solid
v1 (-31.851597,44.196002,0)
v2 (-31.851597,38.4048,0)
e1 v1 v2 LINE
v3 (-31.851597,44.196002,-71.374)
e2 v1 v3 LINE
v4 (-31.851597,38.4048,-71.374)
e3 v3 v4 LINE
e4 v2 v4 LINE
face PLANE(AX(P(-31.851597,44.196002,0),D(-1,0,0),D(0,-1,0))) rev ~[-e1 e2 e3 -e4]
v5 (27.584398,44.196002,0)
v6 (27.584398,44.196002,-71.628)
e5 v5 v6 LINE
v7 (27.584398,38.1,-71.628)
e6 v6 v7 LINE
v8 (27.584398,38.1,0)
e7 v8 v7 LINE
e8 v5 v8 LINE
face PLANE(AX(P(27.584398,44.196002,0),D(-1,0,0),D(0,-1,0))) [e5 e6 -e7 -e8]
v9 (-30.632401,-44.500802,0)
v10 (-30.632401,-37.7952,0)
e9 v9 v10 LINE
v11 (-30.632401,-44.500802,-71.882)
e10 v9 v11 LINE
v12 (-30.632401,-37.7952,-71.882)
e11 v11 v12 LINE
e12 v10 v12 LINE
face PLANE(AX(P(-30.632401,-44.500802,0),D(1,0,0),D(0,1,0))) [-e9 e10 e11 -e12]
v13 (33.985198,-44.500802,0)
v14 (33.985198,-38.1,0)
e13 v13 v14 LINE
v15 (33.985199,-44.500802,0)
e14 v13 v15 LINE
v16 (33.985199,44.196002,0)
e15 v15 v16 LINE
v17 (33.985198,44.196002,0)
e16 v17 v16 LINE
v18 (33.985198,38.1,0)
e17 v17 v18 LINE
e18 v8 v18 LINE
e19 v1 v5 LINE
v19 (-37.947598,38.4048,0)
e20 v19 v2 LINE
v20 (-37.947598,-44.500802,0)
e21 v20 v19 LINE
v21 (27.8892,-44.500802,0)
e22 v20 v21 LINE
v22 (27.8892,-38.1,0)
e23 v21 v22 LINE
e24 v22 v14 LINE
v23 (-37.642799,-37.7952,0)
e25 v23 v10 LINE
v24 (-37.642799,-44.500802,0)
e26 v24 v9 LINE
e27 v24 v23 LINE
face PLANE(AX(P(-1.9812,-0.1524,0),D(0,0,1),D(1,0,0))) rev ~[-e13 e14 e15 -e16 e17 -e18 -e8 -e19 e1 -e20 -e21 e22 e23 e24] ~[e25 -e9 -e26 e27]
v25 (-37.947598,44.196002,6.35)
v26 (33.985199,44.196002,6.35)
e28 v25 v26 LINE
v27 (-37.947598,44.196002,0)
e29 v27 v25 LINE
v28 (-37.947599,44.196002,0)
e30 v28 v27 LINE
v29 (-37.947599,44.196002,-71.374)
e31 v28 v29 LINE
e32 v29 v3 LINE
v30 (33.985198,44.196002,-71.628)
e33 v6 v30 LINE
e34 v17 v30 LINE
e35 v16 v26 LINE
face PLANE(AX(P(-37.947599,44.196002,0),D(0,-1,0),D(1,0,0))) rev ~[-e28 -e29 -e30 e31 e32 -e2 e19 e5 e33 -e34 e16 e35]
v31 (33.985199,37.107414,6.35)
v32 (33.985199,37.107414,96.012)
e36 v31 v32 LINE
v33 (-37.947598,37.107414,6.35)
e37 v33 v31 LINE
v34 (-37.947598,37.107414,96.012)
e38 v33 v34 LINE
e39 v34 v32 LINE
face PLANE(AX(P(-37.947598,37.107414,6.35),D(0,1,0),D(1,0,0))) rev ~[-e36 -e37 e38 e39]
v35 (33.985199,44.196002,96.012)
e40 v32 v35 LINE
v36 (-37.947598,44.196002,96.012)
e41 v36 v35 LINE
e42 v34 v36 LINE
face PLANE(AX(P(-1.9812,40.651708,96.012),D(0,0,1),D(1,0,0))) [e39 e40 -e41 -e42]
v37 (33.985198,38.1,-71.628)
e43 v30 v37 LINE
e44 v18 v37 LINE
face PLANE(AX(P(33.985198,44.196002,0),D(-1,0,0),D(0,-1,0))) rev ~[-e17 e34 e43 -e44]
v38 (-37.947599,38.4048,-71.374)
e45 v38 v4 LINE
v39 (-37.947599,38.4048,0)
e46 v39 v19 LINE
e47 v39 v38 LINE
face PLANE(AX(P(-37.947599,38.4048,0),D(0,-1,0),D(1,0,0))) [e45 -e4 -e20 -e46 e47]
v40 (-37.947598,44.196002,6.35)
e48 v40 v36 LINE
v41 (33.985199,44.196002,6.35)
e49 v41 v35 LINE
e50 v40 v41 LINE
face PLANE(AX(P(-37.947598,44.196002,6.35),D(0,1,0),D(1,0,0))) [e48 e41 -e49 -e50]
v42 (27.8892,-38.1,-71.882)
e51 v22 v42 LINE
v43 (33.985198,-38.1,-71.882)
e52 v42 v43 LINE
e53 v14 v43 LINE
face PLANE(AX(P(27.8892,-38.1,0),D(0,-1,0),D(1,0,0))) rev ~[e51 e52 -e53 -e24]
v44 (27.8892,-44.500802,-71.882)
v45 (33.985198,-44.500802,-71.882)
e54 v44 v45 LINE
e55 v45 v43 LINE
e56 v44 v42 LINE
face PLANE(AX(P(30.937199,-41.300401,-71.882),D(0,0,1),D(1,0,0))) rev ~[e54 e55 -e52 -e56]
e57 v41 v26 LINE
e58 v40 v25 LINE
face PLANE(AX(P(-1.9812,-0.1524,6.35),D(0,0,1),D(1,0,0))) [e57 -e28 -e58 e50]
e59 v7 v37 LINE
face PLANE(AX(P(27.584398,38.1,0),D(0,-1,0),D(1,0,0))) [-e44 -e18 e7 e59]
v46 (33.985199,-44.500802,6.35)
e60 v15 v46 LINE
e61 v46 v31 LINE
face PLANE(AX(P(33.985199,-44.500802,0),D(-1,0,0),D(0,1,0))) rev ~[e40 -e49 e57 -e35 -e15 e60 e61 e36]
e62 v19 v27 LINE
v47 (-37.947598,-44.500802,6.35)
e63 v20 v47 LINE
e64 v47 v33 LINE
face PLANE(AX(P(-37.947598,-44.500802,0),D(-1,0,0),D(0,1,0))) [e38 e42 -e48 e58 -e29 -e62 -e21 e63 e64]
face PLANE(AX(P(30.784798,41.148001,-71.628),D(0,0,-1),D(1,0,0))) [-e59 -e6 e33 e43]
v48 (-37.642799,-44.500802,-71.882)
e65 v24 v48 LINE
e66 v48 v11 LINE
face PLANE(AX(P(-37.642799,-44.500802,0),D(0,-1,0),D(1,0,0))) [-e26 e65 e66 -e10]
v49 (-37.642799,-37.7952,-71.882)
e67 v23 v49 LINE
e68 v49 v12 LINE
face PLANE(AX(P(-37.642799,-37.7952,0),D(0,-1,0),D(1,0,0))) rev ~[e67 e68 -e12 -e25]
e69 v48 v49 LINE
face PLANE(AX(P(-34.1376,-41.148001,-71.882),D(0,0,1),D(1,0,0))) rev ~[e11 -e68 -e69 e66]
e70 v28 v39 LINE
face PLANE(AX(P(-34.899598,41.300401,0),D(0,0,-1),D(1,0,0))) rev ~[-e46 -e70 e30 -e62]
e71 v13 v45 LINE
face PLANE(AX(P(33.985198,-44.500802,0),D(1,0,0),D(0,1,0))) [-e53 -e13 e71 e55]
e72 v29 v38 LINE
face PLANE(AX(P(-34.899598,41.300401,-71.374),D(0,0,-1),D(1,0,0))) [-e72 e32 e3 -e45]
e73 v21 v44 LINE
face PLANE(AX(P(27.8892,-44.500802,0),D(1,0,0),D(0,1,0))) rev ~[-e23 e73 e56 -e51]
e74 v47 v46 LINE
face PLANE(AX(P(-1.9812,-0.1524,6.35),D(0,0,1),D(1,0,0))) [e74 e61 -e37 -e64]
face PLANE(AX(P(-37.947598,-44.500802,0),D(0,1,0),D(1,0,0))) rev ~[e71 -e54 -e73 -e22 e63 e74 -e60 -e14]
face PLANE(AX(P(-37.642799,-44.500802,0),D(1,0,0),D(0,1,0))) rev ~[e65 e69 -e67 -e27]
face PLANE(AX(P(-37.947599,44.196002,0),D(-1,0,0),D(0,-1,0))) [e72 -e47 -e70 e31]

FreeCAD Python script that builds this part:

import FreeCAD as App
import Part
import Sketcher
from FreeCAD import Vector
Q = App.Units.Quantity


def add_polygon(sketch, points):
    """Adds a closed chain of lines whose ends are joined by coincident constraints."""
    first, n = sketch.GeometryCount, len(points)
    for a, b in zip(points, points[1:] + points[:1]):
        sketch.addGeometry(Part.LineSegment(App.Vector(*a, 0), App.Vector(*b, 0)), False)
    for i in range(n):
        sketch.addConstraint(Sketcher.Constraint("Coincident", first + i, 2, first + (i + 1) % n, 1))

doc = App.newDocument("Part")
body = doc.addObject("PartDesign::Body", "Body")

sketch1 = body.newObject("Sketcher::SketchObject", "Sketch")
sketch1.AttachmentSupport = (doc.getObject("XY_Plane"), [""])
sketch1.MapMode = "FlatFace"
add_polygon(sketch1, [(-37.947598, 44.196002), (-37.947598, -44.500802), (33.985199, -44.500802), (33.985199, 44.196002)])
sketch1.addConstraint(Sketcher.Constraint("Vertical", 0))
sketch1.addConstraint(Sketcher.Constraint("Horizontal", 1))
sketch1.addConstraint(Sketcher.Constraint("Vertical", 2))
sketch1.addConstraint(Sketcher.Constraint("Horizontal", 3))
sketch1.addConstraint(Sketcher.Constraint("DistanceX", 1, 1, 1, 2, Q("2.8319999 in")))
sketch1.addConstraint(Sketcher.Constraint("DistanceY", 0, 2, 0, 1, Q("3.4920002 in")))
sketch1.addConstraint(Sketcher.Constraint("DistanceY", -1, 1, 2, 2, Q("1.7400001 in")))
sketch1.addConstraint(Sketcher.Constraint("DistanceX", 0, 2, -1, 1, Q("1.4939999 in")))
pad1 = body.newObject("PartDesign::Pad", "Pad")
pad1.Profile = sketch1
pad1.Length = Q("0.25 in")

sketch2 = body.newObject("Sketcher::SketchObject", "Sketch001")
sketch2.AttachmentSupport = (doc.getObject("XY_Plane"), [""])
sketch2.MapMode = "FlatFace"
add_polygon(sketch2, [(-37.642799, -37.7952), (-37.642799, -44.500802), (-30.632401, -44.500802), (-30.632401, -37.7952)])
sketch2.addConstraint(Sketcher.Constraint("Vertical", 0))
sketch2.addConstraint(Sketcher.Constraint("Horizontal", 1))
sketch2.addConstraint(Sketcher.Constraint("Vertical", 2))
sketch2.addConstraint(Sketcher.Constraint("Horizontal", 3))
sketch2.addConstraint(Sketcher.Constraint("DistanceX", 1, 1, 1, 2, Q("0.2759999 in")))
sketch2.addConstraint(Sketcher.Constraint("DistanceY", 0, 2, 0, 1, Q("0.264 in")))
sketch2.addConstraint(Sketcher.Constraint("DistanceX", 0, 2, -1, 1, Q("1.482 in")))
sketch2.addConstraint(Sketcher.Constraint("DistanceY", 0, 2, -1, 1, Q("1.7520001 in")))
pad2 = body.newObject("PartDesign::Pad", "Pad001")
pad2.Profile = sketch2
pad2.Length = Q("2.83 in")
pad2.Reversed = True

sketch3 = body.newObject("Sketcher::SketchObject", "Sketch002")
sketch3.AttachmentSupport = (doc.getObject("XY_Plane"), [""])
sketch3.MapMode = "FlatFace"
add_polygon(sketch3, [(27.8892, -38.1), (27.8892, -44.500802), (33.985198, -44.500802), (33.985198, -38.1)])
sketch3.addConstraint(Sketcher.Constraint("Vertical", 0))
sketch3.addConstraint(Sketcher.Constraint("Horizontal", 1))
sketch3.addConstraint(Sketcher.Constraint("Vertical", 2))
sketch3.addConstraint(Sketcher.Constraint("Horizontal", 3))
sketch3.addConstraint(Sketcher.Constraint("DistanceX", 1, 1, 1, 2, Q("0.2399999 in")))
sketch3.addConstraint(Sketcher.Constraint("DistanceY", 2, 2, -1, 1, Q("1.5 in")))
sketch3.addConstraint(Sketcher.Constraint("DistanceY", 0, 2, 0, 1, Q("0.2520001 in")))
sketch3.addConstraint(Sketcher.Constraint("DistanceX", -1, 1, 0, 2, Q("1.098 in")))
pad3 = body.newObject("PartDesign::Pad", "Pad002")
pad3.Profile = sketch3
pad3.Length = Q("2.83 in")
pad3.Reversed = True

sketch4 = body.newObject("Sketcher::SketchObject", "Sketch003")
sketch4.AttachmentSupport = (doc.getObject("XY_Plane"), [""])
sketch4.MapMode = "FlatFace"
add_polygon(sketch4, [(-37.947599, 38.4048), (-37.947599, 44.196002), (-31.851597, 44.196002), (-31.851597, 38.4048)])
sketch4.addConstraint(Sketcher.Constraint("Vertical", 0))
sketch4.addConstraint(Sketcher.Constraint("Horizontal", 1))
sketch4.addConstraint(Sketcher.Constraint("Vertical", 2))
sketch4.addConstraint(Sketcher.Constraint("Horizontal", 3))
sketch4.addConstraint(Sketcher.Constraint("DistanceX", 1, 1, 1, 2, Q("0.2400001 in")))
sketch4.addConstraint(Sketcher.Constraint("DistanceY", 0, 1, 0, 2, Q("0.2280001 in")))
sketch4.addConstraint(Sketcher.Constraint("DistanceY", -1, 1, 0, 2, Q("1.7400001 in")))
sketch4.addConstraint(Sketcher.Constraint("DistanceX", 0, 2, -1, 1, Q("1.494 in")))
pad4 = body.newObject("PartDesign::Pad", "Pad003")
pad4.Profile = sketch4
pad4.Length = Q("2.81 in")
pad4.Reversed = True

sketch5 = body.newObject("Sketcher::SketchObject", "Sketch004")
sketch5.AttachmentSupport = (doc.getObject("XY_Plane"), [""])
sketch5.MapMode = "FlatFace"
add_polygon(sketch5, [(27.584398, 38.1), (27.584398, 44.196002), (33.985198, 44.196002), (33.985198, 38.1)])
sketch5.addConstraint(Sketcher.Constraint("Vertical", 0))
sketch5.addConstraint(Sketcher.Constraint("Horizontal", 1))
sketch5.addConstraint(Sketcher.Constraint("Vertical", 2))
sketch5.addConstraint(Sketcher.Constraint("Horizontal", 3))
sketch5.addConstraint(Sketcher.Constraint("DistanceY", 0, 1, 0, 2, Q("0.2400001 in")))
sketch5.addConstraint(Sketcher.Constraint("DistanceY", -1, 1, 2, 2, Q("1.5 in")))
sketch5.addConstraint(Sketcher.Constraint("DistanceX", 1, 1, 1, 2, Q("0.252 in")))
sketch5.addConstraint(Sketcher.Constraint("DistanceX", -1, 1, 0, 2, Q("1.0859999 in")))
pad5 = body.newObject("PartDesign::Pad", "Pad004")
pad5.Profile = sketch5
pad5.Length = Q("2.82 in")
pad5.Reversed = True

sketch6 = body.newObject("Sketcher::SketchObject", "Sketch005")
sketch6.AttachmentSupport = (doc.getObject("XY_Plane"), [""])
sketch6.MapMode = "FlatFace"
sketch6.AttachmentOffset = App.Placement(Vector(0, 0, 0.25 * 25.4), App.Rotation())
add_polygon(sketch6, [(-37.947598, 44.196002), (-37.947598, 37.107414), (33.985199, 37.107414), (33.985199, 44.196002)])
sketch6.addConstraint(Sketcher.Constraint("Vertical", 0))
sketch6.addConstraint(Sketcher.Constraint("Horizontal", 1))
sketch6.addConstraint(Sketcher.Constraint("Vertical", 2))
sketch6.addConstraint(Sketcher.Constraint("Horizontal", 3))
sketch6.addConstraint(Sketcher.Constraint("DistanceX", 1, 1, 1, 2, Q("2.8319999 in")))
sketch6.addConstraint(Sketcher.Constraint("DistanceY", -1, 1, 2, 2, Q("1.7400001 in")))
sketch6.addConstraint(Sketcher.Constraint("DistanceX", 0, 2, -1, 1, Q("1.4939999 in")))
sketch6.addConstraint(Sketcher.Constraint("DistanceY", 0, 2, 0, 1, Q("7.088587 mm")))
pad6 = body.newObject("PartDesign::Pad", "Pad005")
pad6.Profile = sketch6
pad6.Length = Q("3.53 in")

doc.recompute()
